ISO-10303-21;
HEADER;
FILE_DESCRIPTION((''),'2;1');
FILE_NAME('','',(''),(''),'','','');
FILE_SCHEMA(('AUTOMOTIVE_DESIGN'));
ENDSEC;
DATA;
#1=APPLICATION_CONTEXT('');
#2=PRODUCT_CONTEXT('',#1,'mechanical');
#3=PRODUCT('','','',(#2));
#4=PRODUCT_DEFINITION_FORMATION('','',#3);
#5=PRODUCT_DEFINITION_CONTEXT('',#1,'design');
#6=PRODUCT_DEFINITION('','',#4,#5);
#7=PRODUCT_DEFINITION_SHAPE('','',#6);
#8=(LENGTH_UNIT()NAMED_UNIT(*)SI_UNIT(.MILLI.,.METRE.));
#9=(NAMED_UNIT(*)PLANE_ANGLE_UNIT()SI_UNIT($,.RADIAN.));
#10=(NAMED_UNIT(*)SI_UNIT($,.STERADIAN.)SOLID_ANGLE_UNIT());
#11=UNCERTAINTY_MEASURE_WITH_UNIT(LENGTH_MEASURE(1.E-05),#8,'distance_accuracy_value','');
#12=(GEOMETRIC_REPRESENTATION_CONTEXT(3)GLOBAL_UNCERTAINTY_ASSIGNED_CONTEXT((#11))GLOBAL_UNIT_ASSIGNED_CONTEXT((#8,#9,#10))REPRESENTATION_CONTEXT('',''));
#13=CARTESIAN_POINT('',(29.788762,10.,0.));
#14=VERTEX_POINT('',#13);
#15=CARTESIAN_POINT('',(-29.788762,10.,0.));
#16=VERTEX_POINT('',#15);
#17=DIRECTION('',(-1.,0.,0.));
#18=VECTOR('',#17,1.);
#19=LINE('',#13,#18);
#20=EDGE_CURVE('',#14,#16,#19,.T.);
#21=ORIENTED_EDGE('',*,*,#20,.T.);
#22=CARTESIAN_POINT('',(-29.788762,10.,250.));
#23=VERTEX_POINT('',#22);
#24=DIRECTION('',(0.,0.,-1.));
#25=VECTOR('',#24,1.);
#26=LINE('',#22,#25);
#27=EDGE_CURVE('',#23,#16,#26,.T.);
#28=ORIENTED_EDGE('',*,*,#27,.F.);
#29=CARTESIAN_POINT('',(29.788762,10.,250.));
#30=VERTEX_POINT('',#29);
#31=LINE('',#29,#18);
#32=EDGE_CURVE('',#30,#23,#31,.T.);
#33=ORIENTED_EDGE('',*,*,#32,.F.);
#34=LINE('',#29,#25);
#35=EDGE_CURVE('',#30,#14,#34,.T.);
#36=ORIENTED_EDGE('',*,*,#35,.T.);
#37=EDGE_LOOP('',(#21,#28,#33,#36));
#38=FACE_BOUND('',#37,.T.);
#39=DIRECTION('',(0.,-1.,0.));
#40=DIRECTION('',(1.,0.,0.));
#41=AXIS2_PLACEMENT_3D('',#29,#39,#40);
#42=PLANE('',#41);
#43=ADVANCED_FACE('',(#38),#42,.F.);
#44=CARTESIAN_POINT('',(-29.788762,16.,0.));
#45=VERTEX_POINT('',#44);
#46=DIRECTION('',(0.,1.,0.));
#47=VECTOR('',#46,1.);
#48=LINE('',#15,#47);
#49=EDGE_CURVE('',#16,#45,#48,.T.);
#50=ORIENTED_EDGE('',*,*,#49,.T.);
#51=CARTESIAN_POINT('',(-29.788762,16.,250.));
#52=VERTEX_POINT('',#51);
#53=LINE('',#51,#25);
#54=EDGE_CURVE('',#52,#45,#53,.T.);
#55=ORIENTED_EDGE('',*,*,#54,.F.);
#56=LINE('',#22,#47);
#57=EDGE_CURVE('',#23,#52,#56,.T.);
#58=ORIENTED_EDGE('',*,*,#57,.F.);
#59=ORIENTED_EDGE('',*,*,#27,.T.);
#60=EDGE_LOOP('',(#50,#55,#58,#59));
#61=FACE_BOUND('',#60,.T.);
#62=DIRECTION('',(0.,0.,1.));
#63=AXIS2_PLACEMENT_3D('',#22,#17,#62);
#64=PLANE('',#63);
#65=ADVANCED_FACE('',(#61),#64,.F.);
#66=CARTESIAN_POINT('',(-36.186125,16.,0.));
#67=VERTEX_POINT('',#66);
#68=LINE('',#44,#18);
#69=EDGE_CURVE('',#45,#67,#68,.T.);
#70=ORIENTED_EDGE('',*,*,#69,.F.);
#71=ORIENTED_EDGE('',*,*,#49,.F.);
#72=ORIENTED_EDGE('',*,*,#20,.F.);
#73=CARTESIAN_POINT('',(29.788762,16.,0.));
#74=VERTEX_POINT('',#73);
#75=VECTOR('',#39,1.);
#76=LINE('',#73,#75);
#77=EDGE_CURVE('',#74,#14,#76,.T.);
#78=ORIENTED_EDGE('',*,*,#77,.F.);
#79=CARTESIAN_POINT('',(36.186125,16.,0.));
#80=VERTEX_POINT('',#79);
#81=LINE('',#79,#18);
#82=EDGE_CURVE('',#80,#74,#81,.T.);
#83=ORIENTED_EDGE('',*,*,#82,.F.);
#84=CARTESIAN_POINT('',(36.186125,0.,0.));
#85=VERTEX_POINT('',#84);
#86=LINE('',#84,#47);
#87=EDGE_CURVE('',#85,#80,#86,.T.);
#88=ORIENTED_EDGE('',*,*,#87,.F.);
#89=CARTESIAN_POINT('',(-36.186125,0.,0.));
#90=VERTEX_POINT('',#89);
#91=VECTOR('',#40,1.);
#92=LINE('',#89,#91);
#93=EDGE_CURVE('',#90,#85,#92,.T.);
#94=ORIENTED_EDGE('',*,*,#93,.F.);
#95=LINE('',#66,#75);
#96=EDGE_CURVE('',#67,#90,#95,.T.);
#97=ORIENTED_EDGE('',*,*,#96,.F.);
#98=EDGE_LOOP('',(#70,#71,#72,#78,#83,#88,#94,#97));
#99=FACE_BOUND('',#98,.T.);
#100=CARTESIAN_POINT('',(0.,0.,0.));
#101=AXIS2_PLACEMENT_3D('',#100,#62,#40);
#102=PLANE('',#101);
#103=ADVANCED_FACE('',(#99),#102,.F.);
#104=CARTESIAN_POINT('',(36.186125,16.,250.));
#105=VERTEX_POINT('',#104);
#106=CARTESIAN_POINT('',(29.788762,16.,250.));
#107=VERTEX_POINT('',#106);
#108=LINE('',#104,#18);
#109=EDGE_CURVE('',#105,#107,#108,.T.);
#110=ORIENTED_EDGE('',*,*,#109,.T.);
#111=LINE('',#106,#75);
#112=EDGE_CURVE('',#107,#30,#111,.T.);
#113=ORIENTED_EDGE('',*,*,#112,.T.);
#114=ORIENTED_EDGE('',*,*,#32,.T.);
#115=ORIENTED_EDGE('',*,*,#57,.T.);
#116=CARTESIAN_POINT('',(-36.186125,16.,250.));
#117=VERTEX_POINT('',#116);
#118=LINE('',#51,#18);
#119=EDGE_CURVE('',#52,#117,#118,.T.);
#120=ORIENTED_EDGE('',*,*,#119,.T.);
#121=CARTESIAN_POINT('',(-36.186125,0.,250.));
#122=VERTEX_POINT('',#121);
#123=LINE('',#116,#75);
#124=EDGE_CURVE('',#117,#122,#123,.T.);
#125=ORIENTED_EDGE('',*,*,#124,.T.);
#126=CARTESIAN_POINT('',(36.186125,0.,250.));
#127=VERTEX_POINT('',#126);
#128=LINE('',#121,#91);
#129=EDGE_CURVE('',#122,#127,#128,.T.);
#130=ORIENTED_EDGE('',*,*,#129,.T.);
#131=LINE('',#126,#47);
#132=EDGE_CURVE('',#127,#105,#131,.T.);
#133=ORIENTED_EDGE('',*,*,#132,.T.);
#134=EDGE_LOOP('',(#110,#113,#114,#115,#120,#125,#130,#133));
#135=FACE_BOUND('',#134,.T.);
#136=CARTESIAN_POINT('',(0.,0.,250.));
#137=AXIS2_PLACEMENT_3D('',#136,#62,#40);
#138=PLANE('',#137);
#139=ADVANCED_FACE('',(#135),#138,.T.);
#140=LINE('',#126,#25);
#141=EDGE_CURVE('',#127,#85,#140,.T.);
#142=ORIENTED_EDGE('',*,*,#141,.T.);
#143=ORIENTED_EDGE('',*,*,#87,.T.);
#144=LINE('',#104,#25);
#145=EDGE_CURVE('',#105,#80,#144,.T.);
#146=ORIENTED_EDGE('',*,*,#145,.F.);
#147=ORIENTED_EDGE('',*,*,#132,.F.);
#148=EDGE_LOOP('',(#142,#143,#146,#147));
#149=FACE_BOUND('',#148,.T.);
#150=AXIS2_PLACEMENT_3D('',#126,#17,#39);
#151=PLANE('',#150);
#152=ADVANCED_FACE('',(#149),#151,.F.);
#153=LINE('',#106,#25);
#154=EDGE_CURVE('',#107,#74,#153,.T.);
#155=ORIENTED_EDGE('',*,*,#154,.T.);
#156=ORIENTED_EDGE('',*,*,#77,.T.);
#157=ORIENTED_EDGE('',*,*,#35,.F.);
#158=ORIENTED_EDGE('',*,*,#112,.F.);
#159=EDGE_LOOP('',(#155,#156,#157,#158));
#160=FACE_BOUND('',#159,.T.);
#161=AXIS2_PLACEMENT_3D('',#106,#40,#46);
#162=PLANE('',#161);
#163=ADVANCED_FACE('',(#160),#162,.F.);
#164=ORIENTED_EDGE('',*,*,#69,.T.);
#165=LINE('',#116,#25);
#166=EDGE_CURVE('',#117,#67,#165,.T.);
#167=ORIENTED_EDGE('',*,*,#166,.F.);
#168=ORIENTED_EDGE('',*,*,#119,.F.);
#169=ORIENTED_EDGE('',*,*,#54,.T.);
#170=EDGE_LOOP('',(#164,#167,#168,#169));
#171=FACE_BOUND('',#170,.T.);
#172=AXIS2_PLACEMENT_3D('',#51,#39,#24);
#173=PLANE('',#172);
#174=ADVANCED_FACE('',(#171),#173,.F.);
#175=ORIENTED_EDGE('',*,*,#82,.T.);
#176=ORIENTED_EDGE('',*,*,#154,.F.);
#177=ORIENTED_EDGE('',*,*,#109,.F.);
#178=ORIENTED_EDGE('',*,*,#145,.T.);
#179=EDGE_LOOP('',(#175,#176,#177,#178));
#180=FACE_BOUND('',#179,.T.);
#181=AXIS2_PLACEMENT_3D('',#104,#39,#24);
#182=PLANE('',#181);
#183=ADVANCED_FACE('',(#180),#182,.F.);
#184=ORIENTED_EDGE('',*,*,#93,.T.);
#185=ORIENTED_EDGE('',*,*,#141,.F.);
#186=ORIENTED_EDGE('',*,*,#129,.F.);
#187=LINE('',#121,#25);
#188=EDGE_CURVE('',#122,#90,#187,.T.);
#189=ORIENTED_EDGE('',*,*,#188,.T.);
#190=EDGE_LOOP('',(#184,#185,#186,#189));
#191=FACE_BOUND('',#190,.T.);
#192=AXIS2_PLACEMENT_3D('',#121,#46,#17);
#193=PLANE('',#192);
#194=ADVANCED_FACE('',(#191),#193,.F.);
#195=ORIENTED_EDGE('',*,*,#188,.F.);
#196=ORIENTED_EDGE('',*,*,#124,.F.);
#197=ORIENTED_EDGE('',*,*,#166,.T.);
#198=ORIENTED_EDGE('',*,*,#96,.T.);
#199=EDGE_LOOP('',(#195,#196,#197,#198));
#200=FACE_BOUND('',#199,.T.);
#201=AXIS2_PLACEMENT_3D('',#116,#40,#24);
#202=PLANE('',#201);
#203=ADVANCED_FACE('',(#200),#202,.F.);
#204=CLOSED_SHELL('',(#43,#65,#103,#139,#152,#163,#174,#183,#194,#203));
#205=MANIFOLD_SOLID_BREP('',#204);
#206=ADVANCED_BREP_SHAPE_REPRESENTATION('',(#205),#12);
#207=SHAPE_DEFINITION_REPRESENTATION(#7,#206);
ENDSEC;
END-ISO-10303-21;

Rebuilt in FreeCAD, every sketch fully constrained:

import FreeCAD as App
import Part
import Sketcher

doc = App.newDocument("Part")
params = doc.addObject("Spreadsheet::Sheet", "Params")
for row, (alias, value) in enumerate([
    ("sketch1_height", "16 mm"),
    ("sketch1_height2", "6 mm"),
    ("pad1_length", "250 mm"),
], start=1):
    params.set(f"A{row}", alias)
    params.set(f"B{row}", "=" + value)
    params.setAlias(f"B{row}", alias)

body = doc.addObject("PartDesign::Body", "Body")

# Sketch on XY plane
sketch1 = body.newObject("Sketcher::SketchObject", "Sketch")
sketch1.AttachmentSupport = (doc.getObject("XY_Plane"), [""])
sketch1.MapMode = "FlatFace"
sketch1.addGeometry([
    Part.LineSegment(App.Vector(-36, 0, 0), App.Vector(36, 0, 0)),  # 0
    Part.LineSegment(App.Vector(36, 0, 0), App.Vector(36, 16, 0)),  # 1
    Part.LineSegment(App.Vector(36, 16, 0), App.Vector(30, 16, 0)),  # 2
    Part.LineSegment(App.Vector(30, 16, 0), App.Vector(30, 10, 0)),  # 3
    Part.LineSegment(App.Vector(30, 10, 0), App.Vector(-30, 10, 0)),  # 4
    Part.LineSegment(App.Vector(-30, 10, 0), App.Vector(-30, 16, 0)),  # 5
    Part.LineSegment(App.Vector(-30, 16, 0), App.Vector(-36, 16, 0)),  # 6
    Part.LineSegment(App.Vector(-36, 16, 0), App.Vector(-36, 0, 0)),  # 7
], False)
sketch1.addConstraint([
    Sketcher.Constraint("Coincident", 0, 2, 1, 1),
    Sketcher.Constraint("Coincident", 1, 2, 2, 1),
    Sketcher.Constraint("Coincident", 2, 2, 3, 1),
    Sketcher.Constraint("Coincident", 3, 2, 4, 1),
    Sketcher.Constraint("Coincident", 4, 2, 5, 1),
    Sketcher.Constraint("Coincident", 5, 2, 6, 1),
    Sketcher.Constraint("Coincident", 6, 2, 7, 1),
    Sketcher.Constraint("Coincident", 7, 2, 0, 1),
    Sketcher.Constraint("Horizontal", 0),
    Sketcher.Constraint("Vertical", 1),
    Sketcher.Constraint("Horizontal", 2),
    Sketcher.Constraint("Vertical", 3),
    Sketcher.Constraint("Horizontal", 4),
    Sketcher.Constraint("Vertical", 5),
    Sketcher.Constraint("Horizontal", 6),
    Sketcher.Constraint("Vertical", 7),
    Sketcher.Constraint("Symmetric", 0, 2, 7, 2, -1, 1),
    Sketcher.Constraint("Symmetric", 2, 2, 5, 2, -2),
    Sketcher.Constraint("DistanceY", 1, 1, 1, 2, 16.0),
    Sketcher.Constraint("DistanceY", 3, 2, 3, 1, 6.0),
    Sketcher.Constraint("DistanceX", 0, 1, 0, 2, 72.37225),
    Sketcher.Constraint("DistanceX", 2, 2, 2, 1, 6.397363),
])
sketch1.setExpression("Constraints[18]", "Params.sketch1_height")
sketch1.setExpression("Constraints[19]", "Params.sketch1_height2")
pad1 = body.newObject("PartDesign::Pad", "Pad")
pad1.Profile = sketch1
pad1.setExpression("Length", "Params.pad1_length")

doc.recompute()
